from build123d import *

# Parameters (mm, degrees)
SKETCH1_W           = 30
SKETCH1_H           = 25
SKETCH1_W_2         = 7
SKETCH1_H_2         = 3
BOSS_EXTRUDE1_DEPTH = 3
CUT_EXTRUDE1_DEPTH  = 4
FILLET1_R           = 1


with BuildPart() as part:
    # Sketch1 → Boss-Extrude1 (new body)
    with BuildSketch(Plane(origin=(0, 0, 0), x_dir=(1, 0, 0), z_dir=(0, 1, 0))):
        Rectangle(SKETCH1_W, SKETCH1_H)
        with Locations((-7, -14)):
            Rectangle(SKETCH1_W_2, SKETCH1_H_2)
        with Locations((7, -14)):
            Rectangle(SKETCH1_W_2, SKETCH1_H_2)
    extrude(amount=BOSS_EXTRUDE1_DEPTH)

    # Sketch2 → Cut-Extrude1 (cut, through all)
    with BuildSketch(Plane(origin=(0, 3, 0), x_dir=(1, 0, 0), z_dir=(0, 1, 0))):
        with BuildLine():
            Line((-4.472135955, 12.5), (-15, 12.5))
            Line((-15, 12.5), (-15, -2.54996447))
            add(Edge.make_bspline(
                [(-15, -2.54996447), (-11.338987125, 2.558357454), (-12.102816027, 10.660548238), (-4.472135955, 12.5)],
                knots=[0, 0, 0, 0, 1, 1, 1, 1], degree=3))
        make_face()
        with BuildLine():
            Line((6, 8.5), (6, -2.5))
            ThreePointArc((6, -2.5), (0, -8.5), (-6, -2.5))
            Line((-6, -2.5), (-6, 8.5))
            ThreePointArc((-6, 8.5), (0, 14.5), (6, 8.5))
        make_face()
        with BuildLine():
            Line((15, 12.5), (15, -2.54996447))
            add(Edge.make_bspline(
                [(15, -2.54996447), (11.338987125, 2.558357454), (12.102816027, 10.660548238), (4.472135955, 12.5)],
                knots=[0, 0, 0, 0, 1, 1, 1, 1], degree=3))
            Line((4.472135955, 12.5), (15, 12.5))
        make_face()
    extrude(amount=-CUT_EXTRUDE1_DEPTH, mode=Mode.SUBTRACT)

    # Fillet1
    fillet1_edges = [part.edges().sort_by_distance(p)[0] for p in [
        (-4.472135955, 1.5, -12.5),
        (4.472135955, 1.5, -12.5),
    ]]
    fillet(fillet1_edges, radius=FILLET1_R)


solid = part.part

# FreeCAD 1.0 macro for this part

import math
import FreeCAD as App
import Part
import Sketcher
from FreeCAD import Vector


def edges_at(feature, points):
    """Names of the edges that pass closest to the given points."""
    edges = feature.Shape.Edges
    near = lambda p: min(range(len(edges)), key=lambda i: edges[i].distToShape(Part.Vertex(*p))[0])
    return sorted({f"Edge{near(p) + 1}" for p in points})


def add_polygon(sketch, points):
    """Adds a closed chain of lines whose ends are joined by coincident constraints."""
    first, n = sketch.GeometryCount, len(points)
    for a, b in zip(points, points[1:] + points[:1]):
        sketch.addGeometry(Part.LineSegment(App.Vector(*a, 0), App.Vector(*b, 0)), False)
    for i in range(n):
        sketch.addConstraint(Sketcher.Constraint("Coincident", first + i, 2, first + (i + 1) % n, 1))

doc = App.newDocument("Part")
body = doc.addObject("PartDesign::Body", "Body")

sketch1 = body.newObject("Sketcher::SketchObject", "Sketch")
sketch1.AttachmentSupport = (doc.getObject("XZ_Plane"), [""])
sketch1.MapMode = "FlatFace"
add_polygon(sketch1, [(-15, -12.5), (-15, 12.5), (-10.5, 12.5), (-10.5, 15.5), (-3.5, 15.5), (-3.5, 12.5), (3.5, 12.5), (3.5, 15.5), (10.5, 15.5), (10.5, 12.5), (15, 12.5), (15, -12.5)])
sketch1.addConstraint([
    Sketcher.Constraint("Vertical", 0),
    Sketcher.Constraint("Horizontal", 1),
    Sketcher.Constraint("Vertical", 2),
    Sketcher.Constraint("Horizontal", 3),
    Sketcher.Constraint("Vertical", 4),
    Sketcher.Constraint("Horizontal", 5),
    Sketcher.Constraint("Vertical", 6),
    Sketcher.Constraint("Horizontal", 7),
    Sketcher.Constraint("Vertical", 8),
    Sketcher.Constraint("Horizontal", 9),
    Sketcher.Constraint("Vertical", 10),
    Sketcher.Constraint("Horizontal", 11),
    Sketcher.Constraint("Symmetric", 0, 2, 10, 2, -1, 1),
    Sketcher.Constraint("Symmetric", 3, 2, 6, 2, -2),
    Sketcher.Constraint("Symmetric", 1, 2, 8, 2, -2),
    Sketcher.Constraint("Horizontal", 1, 2, 4, 2),
    Sketcher.Constraint("Equal", 3, 5),
    Sketcher.Constraint("DistanceX", 3, 1, 3, 2, 7.0),
    Sketcher.Constraint("DistanceX", 11, 2, 11, 1, 30.0),
    Sketcher.Constraint("DistanceY", 0, 1, 0, 2, 25.0),
    Sketcher.Constraint("DistanceY", 2, 1, 2, 2, 3.0),
])
pad1 = body.newObject("PartDesign::Pad", "Pad")
pad1.Profile = sketch1
pad1.Length = 3
pad1.Reversed = True

sketch2 = body.newObject("Sketcher::SketchObject", "Sketch001")
sketch2.AttachmentSupport = (doc.getObject("XZ_Plane"), [""])
sketch2.MapMode = "FlatFace"
sketch2.AttachmentOffset = App.Placement(Vector(0, 0, -3), App.Rotation())
sketch2.addGeometry([
    Part.LineSegment(Vector(-4.472136, -12.5, 0), Vector(-15, -12.5, 0)),
    Part.LineSegment(Vector(-15, -12.5, 0), Vector(-15, 2.549964, 0)),
    Part.BSplineCurve([Vector(-15, 2.549964, 0), Vector(-11.338987, -2.558357, 0), Vector(-12.102816, -10.660548, 0), Vector(-4.472136, -12.5, 0)], [4, 4], [0, 1], False, 3, [1, 1, 1, 1], False),
    Part.LineSegment(Vector(6, 2.5, 0), Vector(6, -8.5, 0)),
    Part.ArcOfCircle(Part.Circle(Vector(0, -8.5, 0), Vector(0, 0, 1), 6), math.radians(-41.810315), math.radians(0)),
    Part.ArcOfCircle(Part.Circle(Vector(0, -8.5, 0), Vector(0, 0, 1), 6), math.radians(-138.189685), math.radians(-41.810315)),
    Part.ArcOfCircle(Part.Circle(Vector(0, -8.5, 0), Vector(0, 0, 1), 6), math.radians(180), math.radians(221.810315)),
    Part.LineSegment(Vector(-6, -8.5, 0), Vector(-6, 2.5, 0)),
    Part.ArcOfCircle(Part.Circle(Vector(0, 2.5, 0), Vector(0, 0, 1), 6), math.radians(0), math.radians(180)),
    Part.LineSegment(Vector(15, 2.549964, 0), Vector(15, -12.5, 0)),
    Part.LineSegment(Vector(15, -12.5, 0), Vector(4.472136, -12.5, 0)),
    Part.BSplineCurve([Vector(15, 2.549964, 0), Vector(11.338987, -2.558357, 0), Vector(12.102816, -10.660548, 0), Vector(4.472136, -12.5, 0)], [4, 4], [0, 1], False, 3, [1, 1, 1, 1], False),
], False)
sketch2.addConstraint([
    Sketcher.Constraint("Block", 2),
    Sketcher.Constraint("Block", 11),
    Sketcher.Constraint("Coincident", 0, 2, 1, 1),
    Sketcher.Constraint("Coincident", 1, 2, 2, 1),
    Sketcher.Constraint("Coincident", 2, 2, 0, 1),
    Sketcher.Constraint("Tangent", 3, 2, 4, 2),
    Sketcher.Constraint("Tangent", 4, 1, 5, 2),
    Sketcher.Constraint("Tangent", 5, 1, 6, 2),
    Sketcher.Constraint("Tangent", 6, 1, 7, 1),
    Sketcher.Constraint("Tangent", 7, 2, 8, 2),
    Sketcher.Constraint("Tangent", 8, 1, 3, 1),
    Sketcher.Constraint("Coincident", 9, 2, 10, 1),
    Sketcher.Constraint("Coincident", 10, 2, 11, 2),
    Sketcher.Constraint("Coincident", 11, 1, 9, 1),
    Sketcher.Constraint("Horizontal", 0),
    Sketcher.Constraint("Vertical", 1),
    Sketcher.Constraint("Vertical", 3),
    Sketcher.Constraint("Vertical", 7),
    Sketcher.Constraint("Vertical", 9),
    Sketcher.Constraint("Horizontal", 10),
    Sketcher.Constraint("Coincident", 6, 3, 4, 3),
    Sketcher.Constraint("Coincident", 10, 2, 4, 1),
    Sketcher.Constraint("Symmetric", 4, 1, 5, 1, -2),
    Sketcher.Constraint("Radius", 4, 6.0),
    Sketcher.Constraint("DistanceY", 3, 2, 3, 1, 11.0),
])
pocket1 = body.newObject("PartDesign::Pocket", "Pocket")
pocket1.Profile = sketch2
pocket1.Type = "ThroughAll"
pocket1.Reversed = True
doc.recompute()

fillet = body.newObject("PartDesign::Fillet", "Fillet")
fillet.Base = (pocket1, edges_at(pocket1, [(-4.472, 1.5, -12.5), (4.472, 1.5, -12.5)]))
fillet.Radius = 1

doc.recompute()
